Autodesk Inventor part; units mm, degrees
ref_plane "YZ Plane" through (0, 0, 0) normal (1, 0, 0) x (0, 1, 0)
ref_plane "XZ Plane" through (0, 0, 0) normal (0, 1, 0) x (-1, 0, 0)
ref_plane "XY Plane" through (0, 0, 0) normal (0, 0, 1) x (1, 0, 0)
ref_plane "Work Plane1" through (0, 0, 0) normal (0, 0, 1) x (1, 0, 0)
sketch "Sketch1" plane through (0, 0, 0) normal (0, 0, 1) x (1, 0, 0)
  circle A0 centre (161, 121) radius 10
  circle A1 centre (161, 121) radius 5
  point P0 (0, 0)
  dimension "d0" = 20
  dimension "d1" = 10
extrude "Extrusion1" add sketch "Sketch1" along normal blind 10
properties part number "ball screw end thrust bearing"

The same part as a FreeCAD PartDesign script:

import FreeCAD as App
import Part
import Sketcher
Q = App.Units.Quantity

doc = App.newDocument("Part")
params = doc.addObject("Spreadsheet::Sheet", "Params")
for row, (alias, value) in enumerate([
    ("sketch1_diameter", "20 mm"),
    ("sketch1_diameter2", "10 mm"),
    ("pad1_length", "10 mm"),
], start=1):
    params.set(f"A{row}", alias)
    params.set(f"B{row}", "=" + value)
    params.setAlias(f"B{row}", alias)

body = doc.addObject("PartDesign::Body", "Body")

# Sketch on XY plane
sketch1 = body.newObject("Sketcher::SketchObject", "Sketch")
sketch1.AttachmentSupport = (doc.getObject("XY_Plane"), [""])
sketch1.MapMode = "FlatFace"
sketch1.addGeometry([
    Part.Circle(App.Vector(161, 121, 0), App.Vector(0, 0, 1), 10),
    Part.Circle(App.Vector(161, 121, 0), App.Vector(0, 0, 1), 5),
], False)
sketch1.addConstraint([
    Sketcher.Constraint("Coincident", 1, 3, 0, 3),
    Sketcher.Constraint("Diameter", 0, Q("20 mm")),
    Sketcher.Constraint("Diameter", 1, Q("10 mm")),
    Sketcher.Constraint("DistanceX", -1, 1, 0, 3, Q("161 mm")),
    Sketcher.Constraint("DistanceY", -1, 1, 0, 3, Q("121 mm")),
])
sketch1.setExpression("Constraints[1]", "Params.sketch1_diameter")
sketch1.setExpression("Constraints[2]", "Params.sketch1_diameter2")
pad1 = body.newObject("PartDesign::Pad", "Pad")
pad1.Profile = sketch1
pad1.setExpression("Length", "Params.pad1_length")

doc.recompute()
